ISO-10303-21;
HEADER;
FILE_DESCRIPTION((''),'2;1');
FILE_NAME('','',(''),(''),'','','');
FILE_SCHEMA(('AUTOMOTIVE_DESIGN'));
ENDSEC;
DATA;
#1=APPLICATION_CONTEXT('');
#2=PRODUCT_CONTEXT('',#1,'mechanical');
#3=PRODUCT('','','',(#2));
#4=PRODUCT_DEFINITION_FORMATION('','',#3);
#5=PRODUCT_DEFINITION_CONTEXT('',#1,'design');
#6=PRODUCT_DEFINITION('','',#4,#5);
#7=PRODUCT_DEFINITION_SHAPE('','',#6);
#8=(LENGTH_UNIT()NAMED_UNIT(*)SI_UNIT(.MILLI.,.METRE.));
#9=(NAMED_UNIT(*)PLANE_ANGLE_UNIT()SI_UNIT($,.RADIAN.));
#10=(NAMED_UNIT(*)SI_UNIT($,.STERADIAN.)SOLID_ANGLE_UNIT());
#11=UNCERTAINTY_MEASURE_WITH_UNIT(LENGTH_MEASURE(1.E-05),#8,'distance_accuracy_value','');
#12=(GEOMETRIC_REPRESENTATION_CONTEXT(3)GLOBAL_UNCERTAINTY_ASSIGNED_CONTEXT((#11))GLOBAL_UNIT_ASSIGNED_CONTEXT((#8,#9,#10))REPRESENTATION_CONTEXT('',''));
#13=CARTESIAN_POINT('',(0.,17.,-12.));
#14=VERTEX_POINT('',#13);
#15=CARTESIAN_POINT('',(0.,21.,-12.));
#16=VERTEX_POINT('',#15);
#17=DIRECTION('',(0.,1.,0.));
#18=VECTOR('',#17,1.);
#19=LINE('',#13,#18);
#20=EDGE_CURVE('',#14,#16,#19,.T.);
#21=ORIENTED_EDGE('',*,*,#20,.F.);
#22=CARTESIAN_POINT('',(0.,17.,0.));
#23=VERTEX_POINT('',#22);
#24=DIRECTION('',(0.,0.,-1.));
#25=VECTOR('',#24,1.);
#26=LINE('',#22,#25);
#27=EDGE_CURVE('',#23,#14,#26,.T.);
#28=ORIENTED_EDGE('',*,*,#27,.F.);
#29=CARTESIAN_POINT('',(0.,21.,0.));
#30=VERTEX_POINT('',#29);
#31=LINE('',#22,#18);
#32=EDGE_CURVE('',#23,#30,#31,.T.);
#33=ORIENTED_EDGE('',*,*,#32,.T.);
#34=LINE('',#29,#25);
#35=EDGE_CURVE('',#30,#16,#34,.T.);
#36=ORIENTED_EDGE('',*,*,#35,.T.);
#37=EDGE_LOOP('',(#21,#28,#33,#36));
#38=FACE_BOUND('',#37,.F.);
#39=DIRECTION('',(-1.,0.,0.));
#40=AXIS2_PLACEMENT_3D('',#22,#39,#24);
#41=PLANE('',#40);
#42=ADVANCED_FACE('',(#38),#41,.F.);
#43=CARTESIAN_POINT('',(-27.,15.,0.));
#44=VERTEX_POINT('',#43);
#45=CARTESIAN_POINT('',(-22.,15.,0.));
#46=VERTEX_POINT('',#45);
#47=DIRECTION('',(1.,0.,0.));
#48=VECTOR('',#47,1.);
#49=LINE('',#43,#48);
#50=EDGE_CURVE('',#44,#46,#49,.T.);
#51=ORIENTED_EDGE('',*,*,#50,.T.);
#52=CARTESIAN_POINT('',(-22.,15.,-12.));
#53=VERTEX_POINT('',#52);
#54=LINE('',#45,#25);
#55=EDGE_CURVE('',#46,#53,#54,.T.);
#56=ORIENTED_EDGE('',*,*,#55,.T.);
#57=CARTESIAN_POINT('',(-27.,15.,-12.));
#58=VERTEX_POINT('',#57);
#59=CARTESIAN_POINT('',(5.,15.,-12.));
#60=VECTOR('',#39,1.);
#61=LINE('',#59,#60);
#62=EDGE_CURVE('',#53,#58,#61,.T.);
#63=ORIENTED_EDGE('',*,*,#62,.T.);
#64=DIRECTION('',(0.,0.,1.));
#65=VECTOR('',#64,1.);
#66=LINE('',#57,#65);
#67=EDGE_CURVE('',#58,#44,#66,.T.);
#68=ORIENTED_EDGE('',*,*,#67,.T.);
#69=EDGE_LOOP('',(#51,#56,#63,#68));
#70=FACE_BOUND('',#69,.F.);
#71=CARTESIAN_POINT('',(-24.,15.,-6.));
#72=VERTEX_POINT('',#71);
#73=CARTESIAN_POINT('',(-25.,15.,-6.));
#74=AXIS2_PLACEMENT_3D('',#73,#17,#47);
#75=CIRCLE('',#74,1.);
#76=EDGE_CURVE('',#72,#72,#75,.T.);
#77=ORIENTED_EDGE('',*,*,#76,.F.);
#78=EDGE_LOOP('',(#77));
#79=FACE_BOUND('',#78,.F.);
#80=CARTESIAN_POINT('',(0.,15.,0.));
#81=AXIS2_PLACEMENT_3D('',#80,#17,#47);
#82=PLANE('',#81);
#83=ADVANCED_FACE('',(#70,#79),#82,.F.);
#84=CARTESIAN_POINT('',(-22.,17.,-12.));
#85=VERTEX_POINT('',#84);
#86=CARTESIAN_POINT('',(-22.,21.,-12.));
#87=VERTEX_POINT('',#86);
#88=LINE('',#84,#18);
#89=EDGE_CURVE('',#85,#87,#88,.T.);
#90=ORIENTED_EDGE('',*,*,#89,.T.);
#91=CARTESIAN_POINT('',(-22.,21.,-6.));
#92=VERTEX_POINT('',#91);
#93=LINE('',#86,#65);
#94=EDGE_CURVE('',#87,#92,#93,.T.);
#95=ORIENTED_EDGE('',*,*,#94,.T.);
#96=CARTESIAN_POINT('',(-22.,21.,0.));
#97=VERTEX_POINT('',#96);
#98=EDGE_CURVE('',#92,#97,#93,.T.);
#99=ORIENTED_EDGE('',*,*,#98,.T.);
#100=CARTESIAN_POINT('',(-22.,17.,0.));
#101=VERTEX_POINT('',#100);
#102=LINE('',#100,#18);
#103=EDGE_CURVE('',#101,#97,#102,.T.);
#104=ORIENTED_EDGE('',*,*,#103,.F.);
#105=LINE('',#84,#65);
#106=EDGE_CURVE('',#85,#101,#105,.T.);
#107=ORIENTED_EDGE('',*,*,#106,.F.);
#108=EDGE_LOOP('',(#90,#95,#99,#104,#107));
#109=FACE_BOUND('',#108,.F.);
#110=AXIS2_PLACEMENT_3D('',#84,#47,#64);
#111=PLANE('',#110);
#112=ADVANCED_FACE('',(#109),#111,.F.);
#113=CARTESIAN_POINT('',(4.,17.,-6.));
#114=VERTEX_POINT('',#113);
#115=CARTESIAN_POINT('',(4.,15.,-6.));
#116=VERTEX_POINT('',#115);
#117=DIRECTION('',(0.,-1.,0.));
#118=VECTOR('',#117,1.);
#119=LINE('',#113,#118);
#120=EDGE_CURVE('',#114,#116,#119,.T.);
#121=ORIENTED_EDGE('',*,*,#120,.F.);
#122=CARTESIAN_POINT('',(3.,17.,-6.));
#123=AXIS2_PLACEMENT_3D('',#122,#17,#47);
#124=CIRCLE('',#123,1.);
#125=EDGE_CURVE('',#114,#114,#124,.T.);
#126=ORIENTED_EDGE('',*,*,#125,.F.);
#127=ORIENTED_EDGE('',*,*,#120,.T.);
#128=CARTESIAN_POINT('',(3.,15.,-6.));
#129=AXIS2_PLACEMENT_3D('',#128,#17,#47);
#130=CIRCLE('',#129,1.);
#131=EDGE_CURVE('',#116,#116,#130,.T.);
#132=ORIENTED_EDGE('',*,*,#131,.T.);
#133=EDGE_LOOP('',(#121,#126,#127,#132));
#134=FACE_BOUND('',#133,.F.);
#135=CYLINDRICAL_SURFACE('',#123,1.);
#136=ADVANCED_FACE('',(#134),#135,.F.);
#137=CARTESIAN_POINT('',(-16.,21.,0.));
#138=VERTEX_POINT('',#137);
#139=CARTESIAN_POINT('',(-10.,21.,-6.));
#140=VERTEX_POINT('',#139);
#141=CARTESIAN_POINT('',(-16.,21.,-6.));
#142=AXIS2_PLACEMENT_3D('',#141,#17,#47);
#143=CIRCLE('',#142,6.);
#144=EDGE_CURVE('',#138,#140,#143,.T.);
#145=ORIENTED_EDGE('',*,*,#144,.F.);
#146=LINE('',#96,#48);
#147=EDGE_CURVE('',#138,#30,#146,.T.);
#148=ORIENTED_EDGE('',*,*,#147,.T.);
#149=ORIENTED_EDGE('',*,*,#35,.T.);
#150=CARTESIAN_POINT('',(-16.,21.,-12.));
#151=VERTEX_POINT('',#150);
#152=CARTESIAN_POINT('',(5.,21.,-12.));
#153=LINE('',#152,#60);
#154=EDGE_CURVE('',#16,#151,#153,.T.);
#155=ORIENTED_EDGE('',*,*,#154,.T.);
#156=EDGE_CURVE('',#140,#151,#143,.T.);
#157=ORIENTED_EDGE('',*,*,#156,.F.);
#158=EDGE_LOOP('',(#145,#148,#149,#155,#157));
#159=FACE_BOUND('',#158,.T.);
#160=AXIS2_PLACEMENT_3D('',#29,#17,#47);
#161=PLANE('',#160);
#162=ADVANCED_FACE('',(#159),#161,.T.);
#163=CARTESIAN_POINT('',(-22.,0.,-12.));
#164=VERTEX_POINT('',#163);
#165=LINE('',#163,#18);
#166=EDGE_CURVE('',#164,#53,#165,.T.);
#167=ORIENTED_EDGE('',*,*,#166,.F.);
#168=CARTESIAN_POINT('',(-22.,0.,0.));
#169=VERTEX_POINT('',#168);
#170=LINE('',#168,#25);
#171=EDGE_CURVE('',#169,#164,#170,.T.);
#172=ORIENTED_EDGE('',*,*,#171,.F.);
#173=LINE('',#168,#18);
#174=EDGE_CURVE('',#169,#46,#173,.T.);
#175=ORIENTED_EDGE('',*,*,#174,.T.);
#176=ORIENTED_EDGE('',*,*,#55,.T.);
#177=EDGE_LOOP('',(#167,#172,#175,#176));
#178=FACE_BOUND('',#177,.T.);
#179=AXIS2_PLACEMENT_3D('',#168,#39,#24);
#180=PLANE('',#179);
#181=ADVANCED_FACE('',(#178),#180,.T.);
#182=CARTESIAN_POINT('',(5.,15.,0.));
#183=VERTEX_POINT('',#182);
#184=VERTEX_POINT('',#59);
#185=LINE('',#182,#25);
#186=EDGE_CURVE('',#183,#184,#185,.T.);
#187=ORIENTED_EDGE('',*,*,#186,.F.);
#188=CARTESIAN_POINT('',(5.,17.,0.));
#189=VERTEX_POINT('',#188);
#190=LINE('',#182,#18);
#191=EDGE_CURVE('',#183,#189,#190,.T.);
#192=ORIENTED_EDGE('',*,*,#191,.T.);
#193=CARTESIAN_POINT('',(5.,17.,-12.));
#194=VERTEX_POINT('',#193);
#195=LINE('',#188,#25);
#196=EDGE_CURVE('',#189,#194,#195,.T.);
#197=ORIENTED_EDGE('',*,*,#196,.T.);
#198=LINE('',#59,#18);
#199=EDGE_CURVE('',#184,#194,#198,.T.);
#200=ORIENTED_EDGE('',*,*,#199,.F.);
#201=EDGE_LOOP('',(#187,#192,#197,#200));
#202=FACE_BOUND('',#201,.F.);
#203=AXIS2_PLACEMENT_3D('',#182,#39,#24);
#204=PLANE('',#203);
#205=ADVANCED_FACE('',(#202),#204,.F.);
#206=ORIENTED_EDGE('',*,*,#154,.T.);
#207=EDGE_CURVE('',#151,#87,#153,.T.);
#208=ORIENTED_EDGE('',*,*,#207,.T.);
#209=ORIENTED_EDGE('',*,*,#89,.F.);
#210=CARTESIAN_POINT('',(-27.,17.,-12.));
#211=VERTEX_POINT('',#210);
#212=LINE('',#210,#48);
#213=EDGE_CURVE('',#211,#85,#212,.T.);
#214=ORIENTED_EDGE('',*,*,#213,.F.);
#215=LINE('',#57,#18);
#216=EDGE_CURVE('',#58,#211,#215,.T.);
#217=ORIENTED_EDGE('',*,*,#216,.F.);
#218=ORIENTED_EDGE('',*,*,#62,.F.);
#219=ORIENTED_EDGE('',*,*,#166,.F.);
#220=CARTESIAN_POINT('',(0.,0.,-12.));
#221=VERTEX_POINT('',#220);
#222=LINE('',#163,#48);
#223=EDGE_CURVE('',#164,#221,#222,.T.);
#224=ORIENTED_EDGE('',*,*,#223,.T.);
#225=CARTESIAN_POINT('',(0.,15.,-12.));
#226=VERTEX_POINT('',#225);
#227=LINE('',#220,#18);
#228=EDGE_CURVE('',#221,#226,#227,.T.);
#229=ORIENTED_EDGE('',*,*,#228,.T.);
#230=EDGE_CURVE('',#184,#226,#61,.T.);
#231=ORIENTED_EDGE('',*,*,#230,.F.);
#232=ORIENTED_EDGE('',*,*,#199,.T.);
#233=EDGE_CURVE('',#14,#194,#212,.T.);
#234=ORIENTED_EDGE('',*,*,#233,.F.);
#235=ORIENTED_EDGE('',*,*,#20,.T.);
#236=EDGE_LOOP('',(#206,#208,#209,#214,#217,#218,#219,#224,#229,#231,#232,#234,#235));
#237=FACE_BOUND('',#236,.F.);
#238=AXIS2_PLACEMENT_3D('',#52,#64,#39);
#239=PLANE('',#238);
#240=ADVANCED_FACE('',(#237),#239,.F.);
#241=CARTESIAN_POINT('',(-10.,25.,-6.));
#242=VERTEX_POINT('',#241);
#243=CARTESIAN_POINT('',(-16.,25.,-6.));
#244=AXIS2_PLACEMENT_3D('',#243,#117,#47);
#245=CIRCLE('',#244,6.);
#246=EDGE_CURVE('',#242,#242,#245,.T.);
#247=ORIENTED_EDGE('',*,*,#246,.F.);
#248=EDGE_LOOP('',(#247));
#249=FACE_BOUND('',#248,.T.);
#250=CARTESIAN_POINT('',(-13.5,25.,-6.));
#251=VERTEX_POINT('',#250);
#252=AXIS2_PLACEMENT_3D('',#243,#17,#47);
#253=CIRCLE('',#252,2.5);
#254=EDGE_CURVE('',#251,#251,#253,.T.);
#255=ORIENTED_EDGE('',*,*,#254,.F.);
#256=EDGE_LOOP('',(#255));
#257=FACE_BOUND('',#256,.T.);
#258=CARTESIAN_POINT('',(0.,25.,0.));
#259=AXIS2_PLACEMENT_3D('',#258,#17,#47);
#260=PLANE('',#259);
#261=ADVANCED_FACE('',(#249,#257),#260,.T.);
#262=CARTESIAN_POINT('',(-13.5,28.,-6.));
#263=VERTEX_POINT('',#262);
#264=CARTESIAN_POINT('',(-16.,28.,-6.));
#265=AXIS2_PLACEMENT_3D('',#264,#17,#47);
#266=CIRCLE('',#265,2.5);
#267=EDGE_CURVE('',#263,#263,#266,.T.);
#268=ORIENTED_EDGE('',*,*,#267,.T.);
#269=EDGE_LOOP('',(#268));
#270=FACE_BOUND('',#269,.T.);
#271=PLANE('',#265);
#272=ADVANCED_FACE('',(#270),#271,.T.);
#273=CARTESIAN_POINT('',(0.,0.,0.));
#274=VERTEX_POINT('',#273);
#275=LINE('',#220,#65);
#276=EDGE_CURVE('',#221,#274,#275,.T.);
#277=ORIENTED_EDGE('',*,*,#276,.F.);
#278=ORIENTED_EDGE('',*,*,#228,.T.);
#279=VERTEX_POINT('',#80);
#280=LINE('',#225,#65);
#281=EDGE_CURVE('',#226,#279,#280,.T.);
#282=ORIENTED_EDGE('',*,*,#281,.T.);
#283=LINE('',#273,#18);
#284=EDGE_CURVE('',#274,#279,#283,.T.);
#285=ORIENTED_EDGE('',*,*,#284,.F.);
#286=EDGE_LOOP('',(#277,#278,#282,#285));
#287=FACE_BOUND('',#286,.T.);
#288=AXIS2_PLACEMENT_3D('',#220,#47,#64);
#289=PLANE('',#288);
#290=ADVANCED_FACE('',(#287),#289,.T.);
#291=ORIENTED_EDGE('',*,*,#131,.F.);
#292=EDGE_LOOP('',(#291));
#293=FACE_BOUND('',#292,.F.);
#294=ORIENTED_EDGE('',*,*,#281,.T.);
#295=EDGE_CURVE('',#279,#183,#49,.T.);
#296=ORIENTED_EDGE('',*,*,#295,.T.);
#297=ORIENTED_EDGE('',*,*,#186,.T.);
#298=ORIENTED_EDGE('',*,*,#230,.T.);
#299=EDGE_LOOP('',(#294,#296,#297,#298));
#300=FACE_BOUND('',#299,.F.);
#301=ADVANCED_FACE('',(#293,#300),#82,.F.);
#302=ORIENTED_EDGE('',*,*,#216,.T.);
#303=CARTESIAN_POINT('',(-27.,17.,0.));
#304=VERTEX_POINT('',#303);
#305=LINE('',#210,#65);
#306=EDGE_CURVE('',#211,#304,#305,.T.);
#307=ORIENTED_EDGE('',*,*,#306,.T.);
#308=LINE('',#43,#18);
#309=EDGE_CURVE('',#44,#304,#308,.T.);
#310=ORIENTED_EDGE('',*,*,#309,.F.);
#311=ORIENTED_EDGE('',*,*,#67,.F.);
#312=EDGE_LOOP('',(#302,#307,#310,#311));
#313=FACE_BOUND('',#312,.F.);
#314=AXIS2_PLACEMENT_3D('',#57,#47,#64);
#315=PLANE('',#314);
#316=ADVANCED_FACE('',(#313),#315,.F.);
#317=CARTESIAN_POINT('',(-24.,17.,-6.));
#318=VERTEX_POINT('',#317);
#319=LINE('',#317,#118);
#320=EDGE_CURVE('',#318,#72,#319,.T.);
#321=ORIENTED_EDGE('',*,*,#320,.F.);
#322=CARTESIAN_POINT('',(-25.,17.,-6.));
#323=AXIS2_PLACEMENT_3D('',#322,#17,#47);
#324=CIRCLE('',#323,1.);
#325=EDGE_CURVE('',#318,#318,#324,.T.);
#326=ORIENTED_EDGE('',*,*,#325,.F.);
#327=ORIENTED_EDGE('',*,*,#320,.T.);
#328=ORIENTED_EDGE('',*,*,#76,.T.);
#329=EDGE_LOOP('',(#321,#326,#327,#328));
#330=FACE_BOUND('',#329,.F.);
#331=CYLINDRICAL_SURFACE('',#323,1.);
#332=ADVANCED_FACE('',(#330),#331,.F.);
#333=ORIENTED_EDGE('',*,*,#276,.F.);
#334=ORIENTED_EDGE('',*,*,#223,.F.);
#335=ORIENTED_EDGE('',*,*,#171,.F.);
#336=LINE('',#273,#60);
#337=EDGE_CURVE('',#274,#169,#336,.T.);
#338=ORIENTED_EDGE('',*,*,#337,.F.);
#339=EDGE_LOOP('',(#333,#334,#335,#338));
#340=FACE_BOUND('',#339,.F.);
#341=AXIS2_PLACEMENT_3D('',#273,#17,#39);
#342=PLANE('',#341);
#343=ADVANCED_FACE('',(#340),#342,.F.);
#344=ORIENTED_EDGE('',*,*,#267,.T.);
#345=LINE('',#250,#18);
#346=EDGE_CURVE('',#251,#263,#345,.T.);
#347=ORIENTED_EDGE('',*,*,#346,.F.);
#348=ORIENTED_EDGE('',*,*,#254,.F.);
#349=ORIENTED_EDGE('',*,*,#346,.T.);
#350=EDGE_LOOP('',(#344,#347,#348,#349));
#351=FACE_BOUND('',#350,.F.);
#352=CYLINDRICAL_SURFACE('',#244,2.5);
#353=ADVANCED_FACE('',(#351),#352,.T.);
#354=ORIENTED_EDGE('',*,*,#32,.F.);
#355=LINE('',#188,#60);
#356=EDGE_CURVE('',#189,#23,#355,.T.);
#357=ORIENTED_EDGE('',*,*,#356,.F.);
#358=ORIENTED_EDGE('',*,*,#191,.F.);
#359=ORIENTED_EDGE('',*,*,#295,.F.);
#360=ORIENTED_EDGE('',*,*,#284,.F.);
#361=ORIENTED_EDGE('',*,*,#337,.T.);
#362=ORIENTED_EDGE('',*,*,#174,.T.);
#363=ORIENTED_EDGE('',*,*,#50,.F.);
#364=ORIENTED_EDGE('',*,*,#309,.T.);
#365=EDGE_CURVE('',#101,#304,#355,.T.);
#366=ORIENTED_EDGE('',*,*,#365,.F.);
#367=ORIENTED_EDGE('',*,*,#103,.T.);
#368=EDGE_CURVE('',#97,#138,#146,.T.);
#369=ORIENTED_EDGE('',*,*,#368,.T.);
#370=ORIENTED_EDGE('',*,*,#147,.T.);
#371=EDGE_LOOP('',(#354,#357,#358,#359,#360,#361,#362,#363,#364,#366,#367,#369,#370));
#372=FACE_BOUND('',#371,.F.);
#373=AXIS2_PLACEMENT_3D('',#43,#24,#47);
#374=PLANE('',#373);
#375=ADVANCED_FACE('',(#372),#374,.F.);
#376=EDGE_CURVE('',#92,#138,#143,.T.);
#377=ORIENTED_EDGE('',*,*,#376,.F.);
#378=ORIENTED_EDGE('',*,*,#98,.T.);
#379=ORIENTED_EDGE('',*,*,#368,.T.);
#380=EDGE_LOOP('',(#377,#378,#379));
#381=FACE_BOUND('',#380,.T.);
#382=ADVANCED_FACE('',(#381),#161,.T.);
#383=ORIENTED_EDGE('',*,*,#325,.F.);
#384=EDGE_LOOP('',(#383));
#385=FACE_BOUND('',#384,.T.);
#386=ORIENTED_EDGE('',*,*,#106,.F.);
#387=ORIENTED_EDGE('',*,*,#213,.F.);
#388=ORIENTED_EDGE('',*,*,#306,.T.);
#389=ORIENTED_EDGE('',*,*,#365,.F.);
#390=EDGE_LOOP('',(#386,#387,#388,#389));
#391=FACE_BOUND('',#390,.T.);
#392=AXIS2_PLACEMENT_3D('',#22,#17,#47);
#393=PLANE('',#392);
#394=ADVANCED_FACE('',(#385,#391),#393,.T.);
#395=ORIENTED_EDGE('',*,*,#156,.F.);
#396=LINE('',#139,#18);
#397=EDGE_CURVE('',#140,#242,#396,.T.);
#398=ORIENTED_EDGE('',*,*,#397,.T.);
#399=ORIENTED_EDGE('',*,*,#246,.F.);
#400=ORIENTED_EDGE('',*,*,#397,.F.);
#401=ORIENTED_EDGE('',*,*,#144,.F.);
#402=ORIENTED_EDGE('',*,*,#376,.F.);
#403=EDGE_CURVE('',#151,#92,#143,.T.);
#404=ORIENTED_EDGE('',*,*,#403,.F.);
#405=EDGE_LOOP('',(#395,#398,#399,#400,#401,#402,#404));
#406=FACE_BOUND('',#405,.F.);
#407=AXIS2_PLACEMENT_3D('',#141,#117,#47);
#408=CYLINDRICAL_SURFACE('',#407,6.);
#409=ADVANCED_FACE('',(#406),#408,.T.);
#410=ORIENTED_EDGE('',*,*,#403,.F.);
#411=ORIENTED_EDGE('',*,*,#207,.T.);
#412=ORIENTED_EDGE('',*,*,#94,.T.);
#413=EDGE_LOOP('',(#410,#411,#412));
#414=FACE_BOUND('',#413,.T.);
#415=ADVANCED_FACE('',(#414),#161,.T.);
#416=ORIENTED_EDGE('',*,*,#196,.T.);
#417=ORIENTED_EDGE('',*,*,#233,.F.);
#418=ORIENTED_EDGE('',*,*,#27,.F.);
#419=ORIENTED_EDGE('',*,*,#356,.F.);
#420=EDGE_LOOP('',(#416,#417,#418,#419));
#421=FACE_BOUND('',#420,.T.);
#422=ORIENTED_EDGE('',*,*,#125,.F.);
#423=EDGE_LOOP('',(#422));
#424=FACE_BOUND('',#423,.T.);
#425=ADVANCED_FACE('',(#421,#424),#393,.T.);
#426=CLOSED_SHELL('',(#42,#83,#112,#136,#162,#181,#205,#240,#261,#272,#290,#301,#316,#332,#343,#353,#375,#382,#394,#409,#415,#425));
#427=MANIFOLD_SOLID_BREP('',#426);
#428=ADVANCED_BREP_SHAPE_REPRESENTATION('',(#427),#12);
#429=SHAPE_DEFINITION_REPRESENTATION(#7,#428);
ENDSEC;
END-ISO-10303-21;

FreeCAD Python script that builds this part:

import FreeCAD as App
import Part
import Sketcher
Q = App.Units.Quantity


def add_polygon(sketch, points):
    """Adds a closed chain of lines whose ends are joined by coincident constraints."""
    first, n = sketch.GeometryCount, len(points)
    for a, b in zip(points, points[1:] + points[:1]):
        sketch.addGeometry(Part.LineSegment(App.Vector(*a, 0), App.Vector(*b, 0)), False)
    for i in range(n):
        sketch.addConstraint(Sketcher.Constraint("Coincident", first + i, 2, first + (i + 1) % n, 1))

doc = App.newDocument("Part")
body = doc.addObject("PartDesign::Body", "Body")

sketch1 = body.newObject("Sketcher::SketchObject", "Sketch")
sketch1.AttachmentSupport = (doc.getObject("XZ_Plane"), [""])
sketch1.MapMode = "FlatFace"
add_polygon(sketch1, [(-22, 0), (0, 0), (0, -12), (-22, -12)])
sketch1.addConstraint(Sketcher.Constraint("Horizontal", 0))
sketch1.addConstraint(Sketcher.Constraint("Vertical", 1))
sketch1.addConstraint(Sketcher.Constraint("Horizontal", 2))
sketch1.addConstraint(Sketcher.Constraint("Vertical", 3))
sketch1.addConstraint(Sketcher.Constraint("Coincident", 0, 2, -1, 1))
sketch1.addConstraint(Sketcher.Constraint("DistanceX", 0, 1, 0, 2, Q("22 mm")))
sketch1.addConstraint(Sketcher.Constraint("DistanceY", 1, 2, 1, 1, Q("12 mm")))
pad1 = body.newObject("PartDesign::Pad", "Pad")
pad1.Profile = sketch1
pad1.Length = 15
pad1.Reversed = True

sketch2 = body.newObject("Sketcher::SketchObject", "Sketch001")
sketch2.AttachmentSupport = (doc.getObject("XZ_Plane"), [""])
sketch2.MapMode = "FlatFace"
sketch2.AttachmentOffset = App.Placement(App.Vector(0, 0, -15), App.Rotation())
add_polygon(sketch2, [(-27, -12), (-27, 0), (5, 0), (5, -12)])
sketch2.addConstraint(Sketcher.Constraint("Vertical", 0))
sketch2.addConstraint(Sketcher.Constraint("Horizontal", 1))
sketch2.addConstraint(Sketcher.Constraint("Vertical", 2))
sketch2.addConstraint(Sketcher.Constraint("Horizontal", 3))
sketch2.addConstraint(Sketcher.Constraint("PointOnObject", 0, 2, -1))
sketch2.addConstraint(Sketcher.Constraint("DistanceX", -1, 1, 1, 2, Q("5 mm")))
sketch2.addConstraint(Sketcher.Constraint("DistanceX", 1, 1, 1, 2, Q("32 mm")))
sketch2.addConstraint(Sketcher.Constraint("DistanceY", 0, 1, 0, 2, Q("12 mm")))
pad2 = body.newObject("PartDesign::Pad", "Pad001")
pad2.Profile = sketch2
pad2.Length = 2
pad2.Reversed = True

sketch3 = body.newObject("Sketcher::SketchObject", "Sketch002")
sketch3.AttachmentSupport = (doc.getObject("XZ_Plane"), [""])
sketch3.MapMode = "FlatFace"
sketch3.AttachmentOffset = App.Placement(App.Vector(0, 0, -17), App.Rotation())
add_polygon(sketch3, [(-22, -12), (-22, 0), (0, 0), (0, -12)])
sketch3.addConstraint(Sketcher.Constraint("Vertical", 0))
sketch3.addConstraint(Sketcher.Constraint("Horizontal", 1))
sketch3.addConstraint(Sketcher.Constraint("Vertical", 2))
sketch3.addConstraint(Sketcher.Constraint("Horizontal", 3))
sketch3.addConstraint(Sketcher.Constraint("Coincident", 1, 2, -1, 1))
sketch3.addConstraint(Sketcher.Constraint("DistanceX", 1, 1, 1, 2, Q("22 mm")))
sketch3.addConstraint(Sketcher.Constraint("DistanceY", 0, 1, 0, 2, Q("12 mm")))
pad3 = body.newObject("PartDesign::Pad", "Pad002")
pad3.Profile = sketch3
pad3.Length = 4
pad3.Reversed = True

sketch4 = body.newObject("Sketcher::SketchObject", "Sketch003")
sketch4.AttachmentSupport = (doc.getObject("XZ_Plane"), [""])
sketch4.MapMode = "FlatFace"
sketch4.AttachmentOffset = App.Placement(App.Vector(0, 0, -21), App.Rotation())
sketch4.addGeometry(Part.Circle(App.Vector(-16, -6, 0), App.Vector(0, 0, 1), 6), False)
sketch4.addConstraint(Sketcher.Constraint("Diameter", 0, Q("12 mm")))
sketch4.addConstraint(Sketcher.Constraint("DistanceX", 0, 3, -1, 1, Q("16 mm")))
sketch4.addConstraint(Sketcher.Constraint("DistanceY", 0, 3, -1, 1, Q("6 mm")))
pad4 = body.newObject("PartDesign::Pad", "Pad003")
pad4.Profile = sketch4
pad4.Length = 4
pad4.Reversed = True

sketch5 = body.newObject("Sketcher::SketchObject", "Sketch004")
sketch5.AttachmentSupport = (doc.getObject("XZ_Plane"), [""])
sketch5.MapMode = "FlatFace"
sketch5.AttachmentOffset = App.Placement(App.Vector(0, 0, -25), App.Rotation())
sketch5.addGeometry(Part.Circle(App.Vector(-16, -6, 0), App.Vector(0, 0, 1), 2.5), False)
sketch5.addConstraint(Sketcher.Constraint("Diameter", 0, Q("5 mm")))
sketch5.addConstraint(Sketcher.Constraint("DistanceX", 0, 3, -1, 1, Q("16 mm")))
sketch5.addConstraint(Sketcher.Constraint("DistanceY", 0, 3, -1, 1, Q("6 mm")))
pad5 = body.newObject("PartDesign::Pad", "Pad004")
pad5.Profile = sketch5
pad5.Length = 3
pad5.Reversed = True

sketch6 = body.newObject("Sketcher::SketchObject", "Sketch005")
sketch6.AttachmentSupport = (doc.getObject("XZ_Plane"), [""])
sketch6.MapMode = "FlatFace"
sketch6.AttachmentOffset = App.Placement(App.Vector(0, 0, -17), App.Rotation())
sketch6.addGeometry(Part.Circle(App.Vector(3, -6, 0), App.Vector(0, 0, 1), 1), False)
sketch6.addGeometry(Part.Circle(App.Vector(-25, -6, 0), App.Vector(0, 0, 1), 1), False)
sketch6.addConstraint(Sketcher.Constraint("Equal", 0, 1))
sketch6.addConstraint(Sketcher.Constraint("Horizontal", 0, 3, 1, 3))
sketch6.addConstraint(Sketcher.Constraint("Diameter", 0, Q("2 mm")))
sketch6.addConstraint(Sketcher.Constraint("DistanceY", 0, 3, -1, 1, Q("6 mm")))
sketch6.addConstraint(Sketcher.Constraint("DistanceX", 1, 3, 0, 3, Q("28 mm")))
sketch6.addConstraint(Sketcher.Constraint("DistanceX", -1, 1, 0, 3, Q("3 mm")))
pocket1 = body.newObject("PartDesign::Pocket", "Pocket")
pocket1.Profile = sketch6
pocket1.Type = "ThroughAll"
pocket1.Reversed = True

doc.recompute()
